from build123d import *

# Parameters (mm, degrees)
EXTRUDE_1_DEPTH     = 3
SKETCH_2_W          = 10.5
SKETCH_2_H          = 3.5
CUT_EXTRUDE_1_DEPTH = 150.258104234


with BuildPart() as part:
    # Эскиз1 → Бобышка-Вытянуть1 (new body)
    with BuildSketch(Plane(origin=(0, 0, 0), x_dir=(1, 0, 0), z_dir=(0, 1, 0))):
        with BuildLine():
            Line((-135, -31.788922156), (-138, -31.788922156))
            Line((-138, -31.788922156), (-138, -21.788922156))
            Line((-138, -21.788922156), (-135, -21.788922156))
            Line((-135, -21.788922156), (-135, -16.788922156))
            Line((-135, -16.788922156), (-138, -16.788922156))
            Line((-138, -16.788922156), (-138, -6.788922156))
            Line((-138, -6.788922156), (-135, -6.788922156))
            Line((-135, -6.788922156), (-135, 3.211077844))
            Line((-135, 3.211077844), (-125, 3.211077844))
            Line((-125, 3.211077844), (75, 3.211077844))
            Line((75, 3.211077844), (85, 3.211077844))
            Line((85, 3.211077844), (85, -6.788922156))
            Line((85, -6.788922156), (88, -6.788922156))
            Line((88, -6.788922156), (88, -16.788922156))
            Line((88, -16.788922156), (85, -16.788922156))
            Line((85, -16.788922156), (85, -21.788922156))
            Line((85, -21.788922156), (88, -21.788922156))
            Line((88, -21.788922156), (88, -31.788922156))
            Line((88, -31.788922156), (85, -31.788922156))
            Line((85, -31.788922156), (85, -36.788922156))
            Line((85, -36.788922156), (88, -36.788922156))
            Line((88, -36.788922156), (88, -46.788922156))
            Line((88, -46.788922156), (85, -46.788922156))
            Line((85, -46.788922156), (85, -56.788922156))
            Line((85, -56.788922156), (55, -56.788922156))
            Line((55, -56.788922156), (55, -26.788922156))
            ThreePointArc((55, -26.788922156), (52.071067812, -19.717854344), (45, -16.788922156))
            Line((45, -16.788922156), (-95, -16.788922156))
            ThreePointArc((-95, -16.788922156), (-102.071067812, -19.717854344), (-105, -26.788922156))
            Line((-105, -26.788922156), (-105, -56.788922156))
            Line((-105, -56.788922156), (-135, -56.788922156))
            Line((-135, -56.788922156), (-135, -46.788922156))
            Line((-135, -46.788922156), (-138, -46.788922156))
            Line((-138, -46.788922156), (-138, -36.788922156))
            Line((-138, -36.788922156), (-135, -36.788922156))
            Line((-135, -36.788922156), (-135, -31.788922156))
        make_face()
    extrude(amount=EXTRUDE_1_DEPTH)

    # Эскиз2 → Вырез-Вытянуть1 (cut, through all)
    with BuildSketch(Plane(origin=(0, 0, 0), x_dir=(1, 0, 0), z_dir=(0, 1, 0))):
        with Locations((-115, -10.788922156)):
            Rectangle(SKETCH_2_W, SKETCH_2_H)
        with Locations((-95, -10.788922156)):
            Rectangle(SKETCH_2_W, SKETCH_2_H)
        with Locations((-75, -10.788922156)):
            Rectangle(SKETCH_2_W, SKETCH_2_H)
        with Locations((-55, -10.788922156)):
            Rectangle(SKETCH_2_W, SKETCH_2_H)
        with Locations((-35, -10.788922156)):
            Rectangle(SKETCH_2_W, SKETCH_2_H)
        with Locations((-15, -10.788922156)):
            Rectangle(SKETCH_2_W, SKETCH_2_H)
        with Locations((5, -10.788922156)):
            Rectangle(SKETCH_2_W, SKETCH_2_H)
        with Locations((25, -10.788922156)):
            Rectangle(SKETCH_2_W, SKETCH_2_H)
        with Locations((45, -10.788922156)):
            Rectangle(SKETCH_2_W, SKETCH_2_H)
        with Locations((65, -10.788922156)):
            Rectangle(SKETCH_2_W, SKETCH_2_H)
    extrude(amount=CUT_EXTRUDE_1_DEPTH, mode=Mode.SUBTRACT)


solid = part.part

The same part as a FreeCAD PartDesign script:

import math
import FreeCAD as App
import Part
import Sketcher
from FreeCAD import Vector
Q = App.Units.Quantity

doc = App.newDocument("Part")
params = doc.addObject("Spreadsheet::Sheet", "Params")
for row, (alias, value) in enumerate([
    ("sketch1_radius", "10 mm"),
    ("sketch1_width", "3 mm"),
    ("sketch1_width2", "30 mm"),
    ("sketch1_width3", "140 mm"),
    ("sketch1_height", "5 mm"),
    ("pad1_length", "3 mm"),
    ("sketch2_width", "10.5 mm"),
    ("sketch2_height", "3.5 mm"),
], start=1):
    params.set(f"A{row}", alias)
    params.set(f"B{row}", "=" + value)
    params.setAlias(f"B{row}", alias)

body = doc.addObject("PartDesign::Body", "Body")

# Sketch on XZ plane
sketch1 = body.newObject("Sketcher::SketchObject", "Sketch")
sketch1.AttachmentSupport = (doc.getObject("XZ_Plane"), [""])
sketch1.MapMode = "FlatFace"
sketch1.addGeometry([
    Part.LineSegment(Vector(-138, 31.8, 0), Vector(-135, 31.8, 0)),  # 0
    Part.LineSegment(Vector(-135, 31.8, 0), Vector(-135, 36.8, 0)),  # 1
    Part.LineSegment(Vector(-135, 36.8, 0), Vector(-138, 36.8, 0)),  # 2
    Part.LineSegment(Vector(-138, 36.8, 0), Vector(-138, 46.8, 0)),  # 3
    Part.LineSegment(Vector(-138, 46.8, 0), Vector(-135, 46.8, 0)),  # 4
    Part.LineSegment(Vector(-135, 46.8, 0), Vector(-135, 56.8, 0)),  # 5
    Part.LineSegment(Vector(-135, 56.8, 0), Vector(-105, 56.8, 0)),  # 6
    Part.LineSegment(Vector(-105, 56.8, 0), Vector(-105, 26.8, 0)),  # 7
    Part.ArcOfCircle(Part.Circle(Vector(-95, 26.8, 0), Vector(0, 0, 1), 10), math.radians(180), math.radians(270)),  # 8
    Part.LineSegment(Vector(-95, 16.8, 0), Vector(45, 16.8, 0)),  # 9
    Part.ArcOfCircle(Part.Circle(Vector(45, 26.8, 0), Vector(0, 0, 1), 10), math.radians(-90), math.radians(0)),  # 10
    Part.LineSegment(Vector(55, 26.8, 0), Vector(55, 56.8, 0)),  # 11
    Part.LineSegment(Vector(55, 56.8, 0), Vector(85, 56.8, 0)),  # 12
    Part.LineSegment(Vector(85, 56.8, 0), Vector(85, 46.8, 0)),  # 13
    Part.LineSegment(Vector(85, 46.8, 0), Vector(88, 46.8, 0)),  # 14
    Part.LineSegment(Vector(88, 46.8, 0), Vector(88, 36.8, 0)),  # 15
    Part.LineSegment(Vector(88, 36.8, 0), Vector(85, 36.8, 0)),  # 16
    Part.LineSegment(Vector(85, 36.8, 0), Vector(85, 31.8, 0)),  # 17
    Part.LineSegment(Vector(85, 31.8, 0), Vector(88, 31.8, 0)),  # 18
    Part.LineSegment(Vector(88, 31.8, 0), Vector(88, 21.8, 0)),  # 19
    Part.LineSegment(Vector(88, 21.8, 0), Vector(85, 21.8, 0)),  # 20
    Part.LineSegment(Vector(85, 21.8, 0), Vector(85, 16.8, 0)),  # 21
    Part.LineSegment(Vector(85, 16.8, 0), Vector(88, 16.8, 0)),  # 22
    Part.LineSegment(Vector(88, 16.8, 0), Vector(88, 6.8, 0)),  # 23
    Part.LineSegment(Vector(88, 6.8, 0), Vector(85, 6.8, 0)),  # 24
    Part.LineSegment(Vector(85, 6.8, 0), Vector(85, -3.2, 0)),  # 25
    Part.LineSegment(Vector(85, -3.2, 0), Vector(-135, -3.2, 0)),  # 26
    Part.LineSegment(Vector(-135, -3.2, 0), Vector(-135, 6.8, 0)),  # 27
    Part.LineSegment(Vector(-135, 6.8, 0), Vector(-138, 6.8, 0)),  # 28
    Part.LineSegment(Vector(-138, 6.8, 0), Vector(-138, 16.8, 0)),  # 29
    Part.LineSegment(Vector(-138, 16.8, 0), Vector(-135, 16.8, 0)),  # 30
    Part.LineSegment(Vector(-135, 16.8, 0), Vector(-135, 21.8, 0)),  # 31
    Part.LineSegment(Vector(-135, 21.8, 0), Vector(-138, 21.8, 0)),  # 32
    Part.LineSegment(Vector(-138, 21.8, 0), Vector(-138, 31.8, 0)),  # 33
], False)
sketch1.addConstraint([
    Sketcher.Constraint("Coincident", 0, 2, 1, 1),
    Sketcher.Constraint("Coincident", 1, 2, 2, 1),
    Sketcher.Constraint("Coincident", 2, 2, 3, 1),
    Sketcher.Constraint("Coincident", 3, 2, 4, 1),
    Sketcher.Constraint("Coincident", 4, 2, 5, 1),
    Sketcher.Constraint("Coincident", 5, 2, 6, 1),
    Sketcher.Constraint("Coincident", 6, 2, 7, 1),
    Sketcher.Constraint("Tangent", 7, 2, 8, 1),
    Sketcher.Constraint("Tangent", 8, 2, 9, 1),
    Sketcher.Constraint("Tangent", 9, 2, 10, 1),
    Sketcher.Constraint("Tangent", 10, 2, 11, 1),
    Sketcher.Constraint("Coincident", 11, 2, 12, 1),
    Sketcher.Constraint("Coincident", 12, 2, 13, 1),
    Sketcher.Constraint("Coincident", 13, 2, 14, 1),
    Sketcher.Constraint("Coincident", 14, 2, 15, 1),
    Sketcher.Constraint("Coincident", 15, 2, 16, 1),
    Sketcher.Constraint("Coincident", 16, 2, 17, 1),
    Sketcher.Constraint("Coincident", 17, 2, 18, 1),
    Sketcher.Constraint("Coincident", 18, 2, 19, 1),
    Sketcher.Constraint("Coincident", 19, 2, 20, 1),
    Sketcher.Constraint("Coincident", 20, 2, 21, 1),
    Sketcher.Constraint("Coincident", 21, 2, 22, 1),
    Sketcher.Constraint("Coincident", 22, 2, 23, 1),
    Sketcher.Constraint("Coincident", 23, 2, 24, 1),
    Sketcher.Constraint("Coincident", 24, 2, 25, 1),
    Sketcher.Constraint("Coincident", 25, 2, 26, 1),
    Sketcher.Constraint("Coincident", 26, 2, 27, 1),
    Sketcher.Constraint("Coincident", 27, 2, 28, 1),
    Sketcher.Constraint("Coincident", 28, 2, 29, 1),
    Sketcher.Constraint("Coincident", 29, 2, 30, 1),
    Sketcher.Constraint("Coincident", 30, 2, 31, 1),
    Sketcher.Constraint("Coincident", 31, 2, 32, 1),
    Sketcher.Constraint("Coincident", 32, 2, 33, 1),
    Sketcher.Constraint("Coincident", 33, 2, 0, 1),
    Sketcher.Constraint("Horizontal", 0),
    Sketcher.Constraint("Vertical", 1),
    Sketcher.Constraint("Horizontal", 2),
    Sketcher.Constraint("Vertical", 3),
    Sketcher.Constraint("Horizontal", 4),
    Sketcher.Constraint("Vertical", 5),
    Sketcher.Constraint("Horizontal", 6),
    Sketcher.Constraint("Vertical", 7),
    Sketcher.Constraint("Horizontal", 9),
    Sketcher.Constraint("Vertical", 11),
    Sketcher.Constraint("Horizontal", 12),
    Sketcher.Constraint("Vertical", 13),
    Sketcher.Constraint("Horizontal", 14),
    Sketcher.Constraint("Vertical", 15),
    Sketcher.Constraint("Horizontal", 16),
    Sketcher.Constraint("Vertical", 17),
    Sketcher.Constraint("Horizontal", 18),
    Sketcher.Constraint("Vertical", 19),
    Sketcher.Constraint("Horizontal", 20),
    Sketcher.Constraint("Vertical", 21),
    Sketcher.Constraint("Horizontal", 22),
    Sketcher.Constraint("Vertical", 23),
    Sketcher.Constraint("Horizontal", 24),
    Sketcher.Constraint("Vertical", 25),
    Sketcher.Constraint("Horizontal", 26),
    Sketcher.Constraint("Vertical", 27),
    Sketcher.Constraint("Horizontal", 28),
    Sketcher.Constraint("Vertical", 29),
    Sketcher.Constraint("Horizontal", 30),
    Sketcher.Constraint("Vertical", 31),
    Sketcher.Constraint("Horizontal", 32),
    Sketcher.Constraint("Vertical", 33),
    Sketcher.Constraint("Equal", 8, 10),
    Sketcher.Constraint("Horizontal", 6, 2, 11, 2),
    Sketcher.Constraint("Horizontal", 4, 2, 13, 2),
    Sketcher.Constraint("Horizontal", 2, 2, 15, 2),
    Sketcher.Constraint("Horizontal", 0, 2, 17, 2),
    Sketcher.Constraint("Horizontal", 9, 2, 21, 2),
    Sketcher.Constraint("Horizontal", 24, 2, 27, 2),
    Sketcher.Constraint("Horizontal", 22, 2, 29, 2),
    Sketcher.Constraint("Horizontal", 20, 2, 31, 2),
    Sketcher.Constraint("Vertical", 1, 2, 4, 2),
    Sketcher.Constraint("Vertical", 13, 2, 16, 2),
    Sketcher.Constraint("Vertical", 15, 2, 18, 2),
    Sketcher.Constraint("Vertical", 17, 2, 20, 2),
    Sketcher.Constraint("Vertical", 19, 2, 22, 2),
    Sketcher.Constraint("Vertical", 21, 2, 24, 2),
    Sketcher.Constraint("Vertical", 5, 2, 26, 2),
    Sketcher.Constraint("Vertical", 3, 2, 28, 2),
    Sketcher.Constraint("Vertical", 27, 2, 30, 2),
    Sketcher.Constraint("Vertical", 29, 2, 32, 2),
    Sketcher.Constraint("Equal", 6, 12),
    Sketcher.Constraint("Equal", 4, 14),
    Sketcher.Constraint("Equal", 3, 5),
    Sketcher.Constraint("Equal", 12, 7),
    Sketcher.Constraint("Equal", 15, 19),
    Sketcher.Constraint("Equal", 17, 21),
    Sketcher.Constraint("Equal", 19, 23),
    Sketcher.Constraint("Equal", 23, 25),
    Sketcher.Constraint("Radius", 8, Q("10 mm")),
    Sketcher.Constraint("DistanceX", 0, 1, 0, 2, Q("3 mm")),
    Sketcher.Constraint("DistanceX", 6, 1, 6, 2, Q("30 mm")),
    Sketcher.Constraint("DistanceX", 9, 1, 9, 2, Q("140 mm")),
    Sketcher.Constraint("DistanceY", 1, 1, 1, 2, Q("5 mm")),
    Sketcher.Constraint("DistanceX", 8, 3, -1, 1, Q("95 mm")),
    Sketcher.Constraint("DistanceY", -1, 1, 8, 3, Q("26.788922 mm")),
])
sketch1.setExpression("Constraints[93]", "Params.sketch1_radius")
sketch1.setExpression("Constraints[94]", "Params.sketch1_width")
sketch1.setExpression("Constraints[95]", "Params.sketch1_width2")
sketch1.setExpression("Constraints[96]", "Params.sketch1_width3")
sketch1.setExpression("Constraints[97]", "Params.sketch1_height")
pad1 = body.newObject("PartDesign::Pad", "Pad")
pad1.Profile = sketch1
pad1.setExpression("Length", "Params.pad1_length")
pad1.Reversed = True

# Sketch on XZ plane
sketch2 = body.newObject("Sketcher::SketchObject", "Sketch001")
sketch2.AttachmentSupport = (doc.getObject("XZ_Plane"), [""])
sketch2.MapMode = "FlatFace"
sketch2.addGeometry([
    Part.LineSegment(Vector(-120.2, 9, 0), Vector(-120.2, 12.5, 0)),  # 0
    Part.LineSegment(Vector(-120.2, 12.5, 0), Vector(-109.8, 12.5, 0)),  # 1
    Part.LineSegment(Vector(-109.8, 12.5, 0), Vector(-109.8, 9, 0)),  # 2
    Part.LineSegment(Vector(-109.8, 9, 0), Vector(-120.2, 9, 0)),  # 3
    Part.LineSegment(Vector(-100.2, 9, 0), Vector(-100.2, 12.5, 0)),  # 4
    Part.LineSegment(Vector(-100.2, 12.5, 0), Vector(-89.8, 12.5, 0)),  # 5
    Part.LineSegment(Vector(-89.8, 12.5, 0), Vector(-89.8, 9, 0)),  # 6
    Part.LineSegment(Vector(-89.8, 9, 0), Vector(-100.2, 9, 0)),  # 7
    Part.LineSegment(Vector(-80.2, 9, 0), Vector(-80.2, 12.5, 0)),  # 8
    Part.LineSegment(Vector(-80.2, 12.5, 0), Vector(-69.8, 12.5, 0)),  # 9
    Part.LineSegment(Vector(-69.8, 12.5, 0), Vector(-69.8, 9, 0)),  # 10
    Part.LineSegment(Vector(-69.8, 9, 0), Vector(-80.2, 9, 0)),  # 11
    Part.LineSegment(Vector(-60.2, 9, 0), Vector(-60.2, 12.5, 0)),  # 12
    Part.LineSegment(Vector(-60.2, 12.5, 0), Vector(-49.8, 12.5, 0)),  # 13
    Part.LineSegment(Vector(-49.8, 12.5, 0), Vector(-49.8, 9, 0)),  # 14
    Part.LineSegment(Vector(-49.8, 9, 0), Vector(-60.2, 9, 0)),  # 15
    Part.LineSegment(Vector(-40.2, 9, 0), Vector(-40.2, 12.5, 0)),  # 16
    Part.LineSegment(Vector(-40.2, 12.5, 0), Vector(-29.8, 12.5, 0)),  # 17
    Part.LineSegment(Vector(-29.8, 12.5, 0), Vector(-29.8, 9, 0)),  # 18
    Part.LineSegment(Vector(-29.8, 9, 0), Vector(-40.2, 9, 0)),  # 19
    Part.LineSegment(Vector(-20.2, 9, 0), Vector(-20.2, 12.5, 0)),  # 20
    Part.LineSegment(Vector(-20.2, 12.5, 0), Vector(-9.8, 12.5, 0)),  # 21
    Part.LineSegment(Vector(-9.8, 12.5, 0), Vector(-9.8, 9, 0)),  # 22
    Part.LineSegment(Vector(-9.8, 9, 0), Vector(-20.2, 9, 0)),  # 23
    Part.LineSegment(Vector(-0.2, 9, 0), Vector(-0.2, 12.5, 0)),  # 24
    Part.LineSegment(Vector(-0.2, 12.5, 0), Vector(10.2, 12.5, 0)),  # 25
    Part.LineSegment(Vector(10.2, 12.5, 0), Vector(10.2, 9, 0)),  # 26
    Part.LineSegment(Vector(10.2, 9, 0), Vector(-0.2, 9, 0)),  # 27
    Part.LineSegment(Vector(19.8, 9, 0), Vector(19.8, 12.5, 0)),  # 28
    Part.LineSegment(Vector(19.8, 12.5, 0), Vector(30.2, 12.5, 0)),  # 29
    Part.LineSegment(Vector(30.2, 12.5, 0), Vector(30.2, 9, 0)),  # 30
    Part.LineSegment(Vector(30.2, 9, 0), Vector(19.8, 9, 0)),  # 31
    Part.LineSegment(Vector(39.8, 9, 0), Vector(39.8, 12.5, 0)),  # 32
    Part.LineSegment(Vector(39.8, 12.5, 0), Vector(50.2, 12.5, 0)),  # 33
    Part.LineSegment(Vector(50.2, 12.5, 0), Vector(50.2, 9, 0)),  # 34
    Part.LineSegment(Vector(50.2, 9, 0), Vector(39.8, 9, 0)),  # 35
    Part.LineSegment(Vector(59.8, 9, 0), Vector(59.8, 12.5, 0)),  # 36
    Part.LineSegment(Vector(59.8, 12.5, 0), Vector(70.2, 12.5, 0)),  # 37
    Part.LineSegment(Vector(70.2, 12.5, 0), Vector(70.2, 9, 0)),  # 38
    Part.LineSegment(Vector(70.2, 9, 0), Vector(59.8, 9, 0)),  # 39
], False)
sketch2.addConstraint([
    Sketcher.Constraint("Coincident", 0, 2, 1, 1),
    Sketcher.Constraint("Coincident", 1, 2, 2, 1),
    Sketcher.Constraint("Coincident", 2, 2, 3, 1),
    Sketcher.Constraint("Coincident", 3, 2, 0, 1),
    Sketcher.Constraint("Coincident", 4, 2, 5, 1),
    Sketcher.Constraint("Coincident", 5, 2, 6, 1),
    Sketcher.Constraint("Coincident", 6, 2, 7, 1),
    Sketcher.Constraint("Coincident", 7, 2, 4, 1),
    Sketcher.Constraint("Coincident", 8, 2, 9, 1),
    Sketcher.Constraint("Coincident", 9, 2, 10, 1),
    Sketcher.Constraint("Coincident", 10, 2, 11, 1),
    Sketcher.Constraint("Coincident", 11, 2, 8, 1),
    Sketcher.Constraint("Coincident", 12, 2, 13, 1),
    Sketcher.Constraint("Coincident", 13, 2, 14, 1),
    Sketcher.Constraint("Coincident", 14, 2, 15, 1),
    Sketcher.Constraint("Coincident", 15, 2, 12, 1),
    Sketcher.Constraint("Coincident", 16, 2, 17, 1),
    Sketcher.Constraint("Coincident", 17, 2, 18, 1),
    Sketcher.Constraint("Coincident", 18, 2, 19, 1),
    Sketcher.Constraint("Coincident", 19, 2, 16, 1),
    Sketcher.Constraint("Coincident", 20, 2, 21, 1),
    Sketcher.Constraint("Coincident", 21, 2, 22, 1),
    Sketcher.Constraint("Coincident", 22, 2, 23, 1),
    Sketcher.Constraint("Coincident", 23, 2, 20, 1),
    Sketcher.Constraint("Coincident", 24, 2, 25, 1),
    Sketcher.Constraint("Coincident", 25, 2, 26, 1),
    Sketcher.Constraint("Coincident", 26, 2, 27, 1),
    Sketcher.Constraint("Coincident", 27, 2, 24, 1),
    Sketcher.Constraint("Coincident", 28, 2, 29, 1),
    Sketcher.Constraint("Coincident", 29, 2, 30, 1),
    Sketcher.Constraint("Coincident", 30, 2, 31, 1),
    Sketcher.Constraint("Coincident", 31, 2, 28, 1),
    Sketcher.Constraint("Coincident", 32, 2, 33, 1),
    Sketcher.Constraint("Coincident", 33, 2, 34, 1),
    Sketcher.Constraint("Coincident", 34, 2, 35, 1),
    Sketcher.Constraint("Coincident", 35, 2, 32, 1),
    Sketcher.Constraint("Coincident", 36, 2, 37, 1),
    Sketcher.Constraint("Coincident", 37, 2, 38, 1),
    Sketcher.Constraint("Coincident", 38, 2, 39, 1),
    Sketcher.Constraint("Coincident", 39, 2, 36, 1),
    Sketcher.Constraint("Vertical", 0),
    Sketcher.Constraint("Horizontal", 1),
    Sketcher.Constraint("Vertical", 2),
    Sketcher.Constraint("Horizontal", 3),
    Sketcher.Constraint("Vertical", 4),
    Sketcher.Constraint("Horizontal", 5),
    Sketcher.Constraint("Vertical", 6),
    Sketcher.Constraint("Horizontal", 7),
    Sketcher.Constraint("Vertical", 8),
    Sketcher.Constraint("Horizontal", 9),
    Sketcher.Constraint("Vertical", 10),
    Sketcher.Constraint("Horizontal", 11),
    Sketcher.Constraint("Vertical", 12),
    Sketcher.Constraint("Horizontal", 13),
    Sketcher.Constraint("Vertical", 14),
    Sketcher.Constraint("Horizontal", 15),
    Sketcher.Constraint("Vertical", 16),
    Sketcher.Constraint("Horizontal", 17),
    Sketcher.Constraint("Vertical", 18),
    Sketcher.Constraint("Horizontal", 19),
    Sketcher.Constraint("Vertical", 20),
    Sketcher.Constraint("Horizontal", 21),
    Sketcher.Constraint("Vertical", 22),
    Sketcher.Constraint("Horizontal", 23),
    Sketcher.Constraint("Vertical", 24),
    Sketcher.Constraint("Horizontal", 25),
    Sketcher.Constraint("Vertical", 26),
    Sketcher.Constraint("Horizontal", 27),
    Sketcher.Constraint("Vertical", 28),
    Sketcher.Constraint("Horizontal", 29),
    Sketcher.Constraint("Vertical", 30),
    Sketcher.Constraint("Horizontal", 31),
    Sketcher.Constraint("Vertical", 32),
    Sketcher.Constraint("Horizontal", 33),
    Sketcher.Constraint("Vertical", 34),
    Sketcher.Constraint("Horizontal", 35),
    Sketcher.Constraint("Vertical", 36),
    Sketcher.Constraint("Horizontal", 37),
    Sketcher.Constraint("Vertical", 38),
    Sketcher.Constraint("Horizontal", 39),
    Sketcher.Constraint("Horizontal", 1, 2, 4, 2),
    Sketcher.Constraint("Horizontal", 3, 2, 6, 2),
    Sketcher.Constraint("Horizontal", 5, 2, 8, 2),
    Sketcher.Constraint("Horizontal", 7, 2, 10, 2),
    Sketcher.Constraint("Horizontal", 9, 2, 12, 2),
    Sketcher.Constraint("Horizontal", 11, 2, 14, 2),
    Sketcher.Constraint("Horizontal", 13, 2, 16, 2),
    Sketcher.Constraint("Horizontal", 15, 2, 18, 2),
    Sketcher.Constraint("Horizontal", 17, 2, 20, 2),
    Sketcher.Constraint("Horizontal", 19, 2, 22, 2),
    Sketcher.Constraint("Horizontal", 21, 2, 24, 2),
    Sketcher.Constraint("Horizontal", 23, 2, 26, 2),
    Sketcher.Constraint("Horizontal", 25, 2, 28, 2),
    Sketcher.Constraint("Horizontal", 27, 2, 30, 2),
    Sketcher.Constraint("Horizontal", 29, 2, 32, 2),
    Sketcher.Constraint("Horizontal", 31, 2, 34, 2),
    Sketcher.Constraint("Horizontal", 33, 2, 36, 2),
    Sketcher.Constraint("Horizontal", 35, 2, 38, 2),
    Sketcher.Constraint("Equal", 3, 5),
    Sketcher.Constraint("Equal", 7, 9),
    Sketcher.Constraint("Equal", 11, 13),
    Sketcher.Constraint("Equal", 15, 17),
    Sketcher.Constraint("Equal", 19, 21),
    Sketcher.Constraint("Equal", 23, 25),
    Sketcher.Constraint("Equal", 27, 29),
    Sketcher.Constraint("Equal", 31, 33),
    Sketcher.Constraint("Equal", 35, 37),
    Sketcher.Constraint("DistanceX", 1, 1, 1, 2, Q("10.5 mm")),
    Sketcher.Constraint("DistanceY", 0, 1, 0, 2, Q("3.5 mm")),
    Sketcher.Constraint("DistanceX", 0, 2, 4, 2, Q("20 mm")),
    Sketcher.Constraint("DistanceX", 4, 2, 8, 2, Q("20 mm")),
    Sketcher.Constraint("DistanceX", 8, 2, 12, 2, Q("20 mm")),
    Sketcher.Constraint("DistanceX", 12, 2, 16, 2, Q("20 mm")),
    Sketcher.Constraint("DistanceX", 16, 2, 20, 2, Q("20 mm")),
    Sketcher.Constraint("DistanceX", 20, 2, 24, 2, Q("20 mm")),
    Sketcher.Constraint("DistanceX", 24, 2, 28, 2, Q("20 mm")),
    Sketcher.Constraint("DistanceX", 28, 2, 32, 2, Q("20 mm")),
    Sketcher.Constraint("DistanceX", 32, 2, 36, 2, Q("20 mm")),
    Sketcher.Constraint("DistanceX", 0, 2, -1, 1, Q("120.25 mm")),
    Sketcher.Constraint("DistanceY", -1, 1, 0, 2, Q("12.538922 mm")),
])
sketch2.setExpression("Constraints[107]", "Params.sketch2_width")
sketch2.setExpression("Constraints[108]", "Params.sketch2_height")
pocket1 = body.newObject("PartDesign::Pocket", "Pocket")
pocket1.Profile = sketch2
pocket1.Type = "ThroughAll"

doc.recompute()
